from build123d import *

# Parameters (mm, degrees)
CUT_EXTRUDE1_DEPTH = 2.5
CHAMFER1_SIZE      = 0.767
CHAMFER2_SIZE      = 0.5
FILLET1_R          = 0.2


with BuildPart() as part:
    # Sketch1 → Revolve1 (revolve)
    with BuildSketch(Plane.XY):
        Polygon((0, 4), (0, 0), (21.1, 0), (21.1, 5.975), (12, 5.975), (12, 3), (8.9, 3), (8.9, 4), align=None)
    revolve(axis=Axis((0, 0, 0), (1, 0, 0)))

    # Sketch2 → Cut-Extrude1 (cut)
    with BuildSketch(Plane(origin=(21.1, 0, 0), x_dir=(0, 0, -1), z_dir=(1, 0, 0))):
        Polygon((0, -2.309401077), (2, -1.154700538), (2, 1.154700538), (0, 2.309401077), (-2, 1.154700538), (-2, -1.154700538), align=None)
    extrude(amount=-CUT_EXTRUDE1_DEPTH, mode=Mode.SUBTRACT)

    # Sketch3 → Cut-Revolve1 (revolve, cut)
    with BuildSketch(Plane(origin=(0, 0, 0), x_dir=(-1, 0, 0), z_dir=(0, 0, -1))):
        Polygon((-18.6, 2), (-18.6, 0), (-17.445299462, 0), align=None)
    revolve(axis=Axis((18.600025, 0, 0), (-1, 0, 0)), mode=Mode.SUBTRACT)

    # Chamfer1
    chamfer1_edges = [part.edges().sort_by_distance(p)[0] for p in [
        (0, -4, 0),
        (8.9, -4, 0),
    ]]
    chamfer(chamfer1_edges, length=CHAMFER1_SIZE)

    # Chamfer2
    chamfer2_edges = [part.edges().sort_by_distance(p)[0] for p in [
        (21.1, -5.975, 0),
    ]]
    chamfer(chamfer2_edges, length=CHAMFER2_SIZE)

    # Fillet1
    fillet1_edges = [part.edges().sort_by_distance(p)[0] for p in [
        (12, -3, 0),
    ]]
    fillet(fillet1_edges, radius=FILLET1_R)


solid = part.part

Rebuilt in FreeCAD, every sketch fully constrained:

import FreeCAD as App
import Part
import Sketcher

V = App.Vector
Q = App.Units.Quantity


def edges_at(feature, points):
    """Names of the edges that pass closest to the given points."""
    edges = feature.Shape.Edges
    near = lambda p: min(range(len(edges)), key=lambda i: edges[i].distToShape(Part.Vertex(*p))[0])
    return sorted({f"Edge{near(p) + 1}" for p in points})


def add_polygon(sketch, points):
    """Adds a closed chain of lines whose ends are joined by coincident constraints."""
    first, n = sketch.GeometryCount, len(points)
    for a, b in zip(points, points[1:] + points[:1]):
        sketch.addGeometry(Part.LineSegment(App.Vector(*a, 0), App.Vector(*b, 0)), False)
    for i in range(n):
        sketch.addConstraint(Sketcher.Constraint("Coincident", first + i, 2, first + (i + 1) % n, 1))

doc = App.newDocument("Part")
body = doc.addObject("PartDesign::Body", "Body")

sketch1 = body.newObject("Sketcher::SketchObject", "Sketch")
sketch1.AttachmentSupport = (doc.getObject("XY_Plane"), [""])
sketch1.MapMode = "FlatFace"
add_polygon(sketch1, [(0, 4), (0, 0), (21.1, 0), (21.1, 5.975), (12, 5.975), (12, 3), (8.9, 3), (8.9, 4)])
sketch1.addConstraint([
    Sketcher.Constraint("Vertical", 0),
    Sketcher.Constraint("Horizontal", 1),
    Sketcher.Constraint("Vertical", 2),
    Sketcher.Constraint("Horizontal", 3),
    Sketcher.Constraint("Vertical", 4),
    Sketcher.Constraint("Horizontal", 5),
    Sketcher.Constraint("Vertical", 6),
    Sketcher.Constraint("Horizontal", 7),
    Sketcher.Constraint("Coincident", 0, 2, -1, 1),
    Sketcher.Constraint("DistanceY", 0, 2, 0, 1, 4.0),
    Sketcher.Constraint("DistanceY", 6, 1, 6, 2, 1.0),
    Sketcher.Constraint("DistanceX", 1, 1, 1, 2, 21.1),
    Sketcher.Constraint("DistanceX", 3, 2, 3, 1, 9.1),
    Sketcher.Constraint("DistanceX", 5, 2, 5, 1, 3.1),
    Sketcher.Constraint("DistanceY", 2, 1, 2, 2, 5.975),
])
revolution = body.newObject("PartDesign::Revolution", "Revolution")
revolution.Profile = sketch1
revolution.ReferenceAxis = (sketch1, ["H_Axis"])
revolution.Angle = 360

sketch2 = body.newObject("Sketcher::SketchObject", "Sketch001")
sketch2.AttachmentSupport = (doc.getObject("YZ_Plane"), [""])
sketch2.MapMode = "FlatFace"
sketch2.AttachmentOffset = App.Placement(V(0, 0, 21.1), App.Rotation())
add_polygon(sketch2, [(-2.309401, 0), (-1.154701, -2), (1.154701, -2), (2.309401, 0), (1.154701, 2), (-1.154701, 2)])
sketch2.addConstraint([
    Sketcher.Constraint("Horizontal", 1),
    Sketcher.Constraint("Horizontal", 4),
    Sketcher.Constraint("Symmetric", 0, 2, 3, 2, -1, 1),
    Sketcher.Constraint("Symmetric", 2, 2, 5, 2, -1, 1),
    Sketcher.Constraint("PointOnObject", 2, 2, -1),
    Sketcher.Constraint("Parallel", 2, 5),
    Sketcher.Constraint("Vertical", 1, 2, 3, 2),
    Sketcher.Constraint("Angle", 0, Q("-60 deg")),
    Sketcher.Constraint("DistanceY", 0, 2, -1, 1, 2.0),
    Sketcher.Constraint("DistanceX", 1, 1, 1, 2, 2.309401),
])
pocket1 = body.newObject("PartDesign::Pocket", "Pocket")
pocket1.Profile = sketch2
pocket1.Length = 2.5

sketch3 = body.newObject("Sketcher::SketchObject", "Sketch002")
sketch3.AttachmentSupport = (doc.getObject("XY_Plane"), [""])
sketch3.MapMode = "FlatFace"
add_polygon(sketch3, [(18.6, 2), (18.6, 0), (17.445299, 0)])
sketch3.addConstraint([
    Sketcher.Constraint("Vertical", 0),
    Sketcher.Constraint("Horizontal", 1),
    Sketcher.Constraint("PointOnObject", 0, 2, -1),
    Sketcher.Constraint("DistanceY", 0, 2, 0, 1, 2.0),
    Sketcher.Constraint("Angle", 2, Q("60 deg")),
    Sketcher.Constraint("DistanceX", -1, 1, 0, 2, 18.6),
])
groove = body.newObject("PartDesign::Groove", "Groove")
groove.Profile = sketch3
groove.ReferenceAxis = (sketch3, ["H_Axis"])
groove.Angle = 360
doc.recompute()

chamfer = body.newObject("PartDesign::Chamfer", "Chamfer")
chamfer.Base = (groove, edges_at(groove, [(0, -4, 0), (8.9, -4, 0)]))
chamfer.Size = 0.767
doc.recompute()

chamfer2 = body.newObject("PartDesign::Chamfer", "Chamfer001")
chamfer2.Base = (chamfer, edges_at(chamfer, [(21.1, -5.975, 0)]))
chamfer2.Size = 0.5
doc.recompute()

fillet = body.newObject("PartDesign::Fillet", "Fillet")
fillet.Base = (chamfer2, edges_at(chamfer2, [(12, -3, 0)]))
fillet.Radius = 0.2

doc.recompute()
